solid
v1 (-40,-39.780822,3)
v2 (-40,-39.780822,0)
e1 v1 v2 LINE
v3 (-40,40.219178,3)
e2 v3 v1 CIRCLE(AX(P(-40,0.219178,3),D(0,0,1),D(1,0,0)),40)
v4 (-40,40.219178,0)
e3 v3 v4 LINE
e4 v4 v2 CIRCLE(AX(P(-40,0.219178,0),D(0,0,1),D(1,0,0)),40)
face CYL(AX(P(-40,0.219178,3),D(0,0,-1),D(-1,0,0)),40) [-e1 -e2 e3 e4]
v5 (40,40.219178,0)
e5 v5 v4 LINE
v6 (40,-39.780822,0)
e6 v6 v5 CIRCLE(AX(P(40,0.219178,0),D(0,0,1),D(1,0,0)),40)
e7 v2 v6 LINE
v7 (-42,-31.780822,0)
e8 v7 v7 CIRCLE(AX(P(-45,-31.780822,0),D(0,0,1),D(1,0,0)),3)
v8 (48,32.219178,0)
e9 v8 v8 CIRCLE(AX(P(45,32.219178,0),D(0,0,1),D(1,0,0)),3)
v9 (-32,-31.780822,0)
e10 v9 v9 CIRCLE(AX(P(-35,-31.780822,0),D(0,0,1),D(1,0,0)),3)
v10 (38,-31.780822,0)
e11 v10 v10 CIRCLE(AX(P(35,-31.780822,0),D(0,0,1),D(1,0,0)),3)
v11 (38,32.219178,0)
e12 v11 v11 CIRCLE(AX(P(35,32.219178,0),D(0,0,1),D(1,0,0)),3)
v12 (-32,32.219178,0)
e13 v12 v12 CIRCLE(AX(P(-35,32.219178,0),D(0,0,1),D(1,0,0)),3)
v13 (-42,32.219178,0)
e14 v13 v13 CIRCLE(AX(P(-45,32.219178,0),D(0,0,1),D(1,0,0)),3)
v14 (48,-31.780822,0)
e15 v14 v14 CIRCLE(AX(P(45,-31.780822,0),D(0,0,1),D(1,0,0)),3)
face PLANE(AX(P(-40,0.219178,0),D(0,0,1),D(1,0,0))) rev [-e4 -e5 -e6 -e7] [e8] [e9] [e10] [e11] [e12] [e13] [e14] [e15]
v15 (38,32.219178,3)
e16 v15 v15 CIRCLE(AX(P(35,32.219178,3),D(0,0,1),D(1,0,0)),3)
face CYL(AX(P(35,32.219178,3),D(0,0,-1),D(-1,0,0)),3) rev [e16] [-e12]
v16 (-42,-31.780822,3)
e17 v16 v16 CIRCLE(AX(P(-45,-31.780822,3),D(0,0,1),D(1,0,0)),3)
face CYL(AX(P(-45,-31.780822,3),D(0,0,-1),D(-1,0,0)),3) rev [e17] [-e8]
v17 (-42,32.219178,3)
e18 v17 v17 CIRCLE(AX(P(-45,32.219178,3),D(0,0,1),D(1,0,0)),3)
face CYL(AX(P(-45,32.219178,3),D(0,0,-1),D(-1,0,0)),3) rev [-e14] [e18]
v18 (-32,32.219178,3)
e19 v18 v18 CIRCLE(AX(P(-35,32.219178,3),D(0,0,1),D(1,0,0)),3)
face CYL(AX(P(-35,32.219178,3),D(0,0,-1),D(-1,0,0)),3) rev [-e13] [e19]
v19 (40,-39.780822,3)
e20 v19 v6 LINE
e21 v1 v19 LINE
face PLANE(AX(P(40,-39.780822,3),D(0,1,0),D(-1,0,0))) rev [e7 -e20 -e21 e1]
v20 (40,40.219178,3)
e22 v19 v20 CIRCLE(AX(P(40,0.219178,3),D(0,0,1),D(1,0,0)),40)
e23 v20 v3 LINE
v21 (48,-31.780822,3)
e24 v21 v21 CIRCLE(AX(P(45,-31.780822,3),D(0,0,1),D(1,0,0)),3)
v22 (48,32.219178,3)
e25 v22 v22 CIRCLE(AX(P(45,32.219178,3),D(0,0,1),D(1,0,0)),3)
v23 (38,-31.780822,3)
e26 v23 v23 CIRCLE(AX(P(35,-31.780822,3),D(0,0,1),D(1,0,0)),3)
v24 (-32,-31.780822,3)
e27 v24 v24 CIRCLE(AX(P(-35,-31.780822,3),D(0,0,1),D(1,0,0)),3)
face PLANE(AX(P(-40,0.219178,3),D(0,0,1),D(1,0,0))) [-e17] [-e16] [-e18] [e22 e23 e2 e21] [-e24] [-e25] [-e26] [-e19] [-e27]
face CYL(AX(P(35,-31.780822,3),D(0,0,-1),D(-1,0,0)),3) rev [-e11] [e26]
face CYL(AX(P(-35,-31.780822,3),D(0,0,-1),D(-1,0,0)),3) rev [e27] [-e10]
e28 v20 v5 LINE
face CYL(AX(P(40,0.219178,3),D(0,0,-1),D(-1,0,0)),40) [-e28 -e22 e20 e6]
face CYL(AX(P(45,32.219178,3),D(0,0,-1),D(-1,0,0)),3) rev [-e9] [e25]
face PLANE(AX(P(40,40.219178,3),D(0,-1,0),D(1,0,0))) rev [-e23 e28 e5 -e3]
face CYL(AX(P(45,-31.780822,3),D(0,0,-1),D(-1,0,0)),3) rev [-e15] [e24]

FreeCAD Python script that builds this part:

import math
import FreeCAD as App
import Part
import Sketcher

V = App.Vector

doc = App.newDocument("Part")
body = doc.addObject("PartDesign::Body", "Body")

# Sketch on XY plane
sketch1 = body.newObject("Sketcher::SketchObject", "Sketch")
sketch1.AttachmentSupport = (doc.getObject("XY_Plane"), [""])
sketch1.MapMode = "FlatFace"
sketch1.addGeometry([
    Part.LineSegment(V(40, 40.2, 0), V(-40, 40.2, 0)),  # 0
    Part.ArcOfCircle(Part.Circle(V(-40, 0.2, 0), V(0, 0, 1), 40), math.radians(90), math.radians(270)),  # 1
    Part.LineSegment(V(-40, -39.8, 0), V(40, -39.8, 0)),  # 2
    Part.ArcOfCircle(Part.Circle(V(40, 0.2, 0), V(0, 0, 1), 40), math.radians(-90), math.radians(90)),  # 3
    Part.Circle(V(-45, -31.8, 0), V(0, 0, 1), 3),  # 4
    Part.Circle(V(-35, -31.8, 0), V(0, 0, 1), 3),  # 5
    Part.Circle(V(35, -31.8, 0), V(0, 0, 1), 3),  # 6
    Part.Circle(V(45, -31.8, 0), V(0, 0, 1), 3),  # 7
    Part.Circle(V(-45, 32.2, 0), V(0, 0, 1), 3),  # 8
    Part.Circle(V(-35, 32.2, 0), V(0, 0, 1), 3),  # 9
    Part.Circle(V(35, 32.2, 0), V(0, 0, 1), 3),  # 10
    Part.Circle(V(45, 32.2, 0), V(0, 0, 1), 3),  # 11
], False)
sketch1.addConstraint([
    Sketcher.Constraint("Tangent", 0, 2, 1, 1),
    Sketcher.Constraint("Tangent", 1, 2, 2, 1),
    Sketcher.Constraint("Tangent", 2, 2, 3, 1),
    Sketcher.Constraint("Tangent", 3, 2, 0, 1),
    Sketcher.Constraint("Horizontal", 0),
    Sketcher.Constraint("Horizontal", 2),
    Sketcher.Constraint("Equal", 4, 5),
    Sketcher.Constraint("Equal", 5, 6),
    Sketcher.Constraint("Equal", 6, 7),
    Sketcher.Constraint("Equal", 7, 8),
    Sketcher.Constraint("Equal", 8, 9),
    Sketcher.Constraint("Equal", 9, 10),
    Sketcher.Constraint("Equal", 10, 11),
    Sketcher.Constraint("Symmetric", 5, 3, 6, 3, -2),
    Sketcher.Constraint("Symmetric", 4, 3, 7, 3, -2),
    Sketcher.Constraint("Symmetric", 9, 3, 10, 3, -2),
    Sketcher.Constraint("Symmetric", 8, 3, 11, 3, -2),
    Sketcher.Constraint("Horizontal", 4, 3, 5, 3),
    Sketcher.Constraint("Horizontal", 8, 3, 9, 3),
    Sketcher.Constraint("Vertical", 4, 3, 8, 3),
    Sketcher.Constraint("Vertical", 5, 3, 9, 3),
    Sketcher.Constraint("Diameter", 4, 6.0),
    Sketcher.Constraint("Radius", 1, 40.0),
    Sketcher.Constraint("DistanceX", 0, 2, 0, 1, 80.0),
    Sketcher.Constraint("DistanceX", 1, 3, -1, 1, 40.0),
    Sketcher.Constraint("DistanceX", 4, 3, -1, 1, 45.0),
    Sketcher.Constraint("DistanceX", 5, 3, -1, 1, 35.0),
    Sketcher.Constraint("DistanceY", 4, 3, 1, 3, 32.0),
    Sketcher.Constraint("DistanceY", 1, 3, 8, 3, 32.0),
    Sketcher.Constraint("DistanceY", -1, 1, 1, 3, 0.219178),
])
pad1 = body.newObject("PartDesign::Pad", "Pad")
pad1.Profile = sketch1
pad1.Length = 3

doc.recompute()
